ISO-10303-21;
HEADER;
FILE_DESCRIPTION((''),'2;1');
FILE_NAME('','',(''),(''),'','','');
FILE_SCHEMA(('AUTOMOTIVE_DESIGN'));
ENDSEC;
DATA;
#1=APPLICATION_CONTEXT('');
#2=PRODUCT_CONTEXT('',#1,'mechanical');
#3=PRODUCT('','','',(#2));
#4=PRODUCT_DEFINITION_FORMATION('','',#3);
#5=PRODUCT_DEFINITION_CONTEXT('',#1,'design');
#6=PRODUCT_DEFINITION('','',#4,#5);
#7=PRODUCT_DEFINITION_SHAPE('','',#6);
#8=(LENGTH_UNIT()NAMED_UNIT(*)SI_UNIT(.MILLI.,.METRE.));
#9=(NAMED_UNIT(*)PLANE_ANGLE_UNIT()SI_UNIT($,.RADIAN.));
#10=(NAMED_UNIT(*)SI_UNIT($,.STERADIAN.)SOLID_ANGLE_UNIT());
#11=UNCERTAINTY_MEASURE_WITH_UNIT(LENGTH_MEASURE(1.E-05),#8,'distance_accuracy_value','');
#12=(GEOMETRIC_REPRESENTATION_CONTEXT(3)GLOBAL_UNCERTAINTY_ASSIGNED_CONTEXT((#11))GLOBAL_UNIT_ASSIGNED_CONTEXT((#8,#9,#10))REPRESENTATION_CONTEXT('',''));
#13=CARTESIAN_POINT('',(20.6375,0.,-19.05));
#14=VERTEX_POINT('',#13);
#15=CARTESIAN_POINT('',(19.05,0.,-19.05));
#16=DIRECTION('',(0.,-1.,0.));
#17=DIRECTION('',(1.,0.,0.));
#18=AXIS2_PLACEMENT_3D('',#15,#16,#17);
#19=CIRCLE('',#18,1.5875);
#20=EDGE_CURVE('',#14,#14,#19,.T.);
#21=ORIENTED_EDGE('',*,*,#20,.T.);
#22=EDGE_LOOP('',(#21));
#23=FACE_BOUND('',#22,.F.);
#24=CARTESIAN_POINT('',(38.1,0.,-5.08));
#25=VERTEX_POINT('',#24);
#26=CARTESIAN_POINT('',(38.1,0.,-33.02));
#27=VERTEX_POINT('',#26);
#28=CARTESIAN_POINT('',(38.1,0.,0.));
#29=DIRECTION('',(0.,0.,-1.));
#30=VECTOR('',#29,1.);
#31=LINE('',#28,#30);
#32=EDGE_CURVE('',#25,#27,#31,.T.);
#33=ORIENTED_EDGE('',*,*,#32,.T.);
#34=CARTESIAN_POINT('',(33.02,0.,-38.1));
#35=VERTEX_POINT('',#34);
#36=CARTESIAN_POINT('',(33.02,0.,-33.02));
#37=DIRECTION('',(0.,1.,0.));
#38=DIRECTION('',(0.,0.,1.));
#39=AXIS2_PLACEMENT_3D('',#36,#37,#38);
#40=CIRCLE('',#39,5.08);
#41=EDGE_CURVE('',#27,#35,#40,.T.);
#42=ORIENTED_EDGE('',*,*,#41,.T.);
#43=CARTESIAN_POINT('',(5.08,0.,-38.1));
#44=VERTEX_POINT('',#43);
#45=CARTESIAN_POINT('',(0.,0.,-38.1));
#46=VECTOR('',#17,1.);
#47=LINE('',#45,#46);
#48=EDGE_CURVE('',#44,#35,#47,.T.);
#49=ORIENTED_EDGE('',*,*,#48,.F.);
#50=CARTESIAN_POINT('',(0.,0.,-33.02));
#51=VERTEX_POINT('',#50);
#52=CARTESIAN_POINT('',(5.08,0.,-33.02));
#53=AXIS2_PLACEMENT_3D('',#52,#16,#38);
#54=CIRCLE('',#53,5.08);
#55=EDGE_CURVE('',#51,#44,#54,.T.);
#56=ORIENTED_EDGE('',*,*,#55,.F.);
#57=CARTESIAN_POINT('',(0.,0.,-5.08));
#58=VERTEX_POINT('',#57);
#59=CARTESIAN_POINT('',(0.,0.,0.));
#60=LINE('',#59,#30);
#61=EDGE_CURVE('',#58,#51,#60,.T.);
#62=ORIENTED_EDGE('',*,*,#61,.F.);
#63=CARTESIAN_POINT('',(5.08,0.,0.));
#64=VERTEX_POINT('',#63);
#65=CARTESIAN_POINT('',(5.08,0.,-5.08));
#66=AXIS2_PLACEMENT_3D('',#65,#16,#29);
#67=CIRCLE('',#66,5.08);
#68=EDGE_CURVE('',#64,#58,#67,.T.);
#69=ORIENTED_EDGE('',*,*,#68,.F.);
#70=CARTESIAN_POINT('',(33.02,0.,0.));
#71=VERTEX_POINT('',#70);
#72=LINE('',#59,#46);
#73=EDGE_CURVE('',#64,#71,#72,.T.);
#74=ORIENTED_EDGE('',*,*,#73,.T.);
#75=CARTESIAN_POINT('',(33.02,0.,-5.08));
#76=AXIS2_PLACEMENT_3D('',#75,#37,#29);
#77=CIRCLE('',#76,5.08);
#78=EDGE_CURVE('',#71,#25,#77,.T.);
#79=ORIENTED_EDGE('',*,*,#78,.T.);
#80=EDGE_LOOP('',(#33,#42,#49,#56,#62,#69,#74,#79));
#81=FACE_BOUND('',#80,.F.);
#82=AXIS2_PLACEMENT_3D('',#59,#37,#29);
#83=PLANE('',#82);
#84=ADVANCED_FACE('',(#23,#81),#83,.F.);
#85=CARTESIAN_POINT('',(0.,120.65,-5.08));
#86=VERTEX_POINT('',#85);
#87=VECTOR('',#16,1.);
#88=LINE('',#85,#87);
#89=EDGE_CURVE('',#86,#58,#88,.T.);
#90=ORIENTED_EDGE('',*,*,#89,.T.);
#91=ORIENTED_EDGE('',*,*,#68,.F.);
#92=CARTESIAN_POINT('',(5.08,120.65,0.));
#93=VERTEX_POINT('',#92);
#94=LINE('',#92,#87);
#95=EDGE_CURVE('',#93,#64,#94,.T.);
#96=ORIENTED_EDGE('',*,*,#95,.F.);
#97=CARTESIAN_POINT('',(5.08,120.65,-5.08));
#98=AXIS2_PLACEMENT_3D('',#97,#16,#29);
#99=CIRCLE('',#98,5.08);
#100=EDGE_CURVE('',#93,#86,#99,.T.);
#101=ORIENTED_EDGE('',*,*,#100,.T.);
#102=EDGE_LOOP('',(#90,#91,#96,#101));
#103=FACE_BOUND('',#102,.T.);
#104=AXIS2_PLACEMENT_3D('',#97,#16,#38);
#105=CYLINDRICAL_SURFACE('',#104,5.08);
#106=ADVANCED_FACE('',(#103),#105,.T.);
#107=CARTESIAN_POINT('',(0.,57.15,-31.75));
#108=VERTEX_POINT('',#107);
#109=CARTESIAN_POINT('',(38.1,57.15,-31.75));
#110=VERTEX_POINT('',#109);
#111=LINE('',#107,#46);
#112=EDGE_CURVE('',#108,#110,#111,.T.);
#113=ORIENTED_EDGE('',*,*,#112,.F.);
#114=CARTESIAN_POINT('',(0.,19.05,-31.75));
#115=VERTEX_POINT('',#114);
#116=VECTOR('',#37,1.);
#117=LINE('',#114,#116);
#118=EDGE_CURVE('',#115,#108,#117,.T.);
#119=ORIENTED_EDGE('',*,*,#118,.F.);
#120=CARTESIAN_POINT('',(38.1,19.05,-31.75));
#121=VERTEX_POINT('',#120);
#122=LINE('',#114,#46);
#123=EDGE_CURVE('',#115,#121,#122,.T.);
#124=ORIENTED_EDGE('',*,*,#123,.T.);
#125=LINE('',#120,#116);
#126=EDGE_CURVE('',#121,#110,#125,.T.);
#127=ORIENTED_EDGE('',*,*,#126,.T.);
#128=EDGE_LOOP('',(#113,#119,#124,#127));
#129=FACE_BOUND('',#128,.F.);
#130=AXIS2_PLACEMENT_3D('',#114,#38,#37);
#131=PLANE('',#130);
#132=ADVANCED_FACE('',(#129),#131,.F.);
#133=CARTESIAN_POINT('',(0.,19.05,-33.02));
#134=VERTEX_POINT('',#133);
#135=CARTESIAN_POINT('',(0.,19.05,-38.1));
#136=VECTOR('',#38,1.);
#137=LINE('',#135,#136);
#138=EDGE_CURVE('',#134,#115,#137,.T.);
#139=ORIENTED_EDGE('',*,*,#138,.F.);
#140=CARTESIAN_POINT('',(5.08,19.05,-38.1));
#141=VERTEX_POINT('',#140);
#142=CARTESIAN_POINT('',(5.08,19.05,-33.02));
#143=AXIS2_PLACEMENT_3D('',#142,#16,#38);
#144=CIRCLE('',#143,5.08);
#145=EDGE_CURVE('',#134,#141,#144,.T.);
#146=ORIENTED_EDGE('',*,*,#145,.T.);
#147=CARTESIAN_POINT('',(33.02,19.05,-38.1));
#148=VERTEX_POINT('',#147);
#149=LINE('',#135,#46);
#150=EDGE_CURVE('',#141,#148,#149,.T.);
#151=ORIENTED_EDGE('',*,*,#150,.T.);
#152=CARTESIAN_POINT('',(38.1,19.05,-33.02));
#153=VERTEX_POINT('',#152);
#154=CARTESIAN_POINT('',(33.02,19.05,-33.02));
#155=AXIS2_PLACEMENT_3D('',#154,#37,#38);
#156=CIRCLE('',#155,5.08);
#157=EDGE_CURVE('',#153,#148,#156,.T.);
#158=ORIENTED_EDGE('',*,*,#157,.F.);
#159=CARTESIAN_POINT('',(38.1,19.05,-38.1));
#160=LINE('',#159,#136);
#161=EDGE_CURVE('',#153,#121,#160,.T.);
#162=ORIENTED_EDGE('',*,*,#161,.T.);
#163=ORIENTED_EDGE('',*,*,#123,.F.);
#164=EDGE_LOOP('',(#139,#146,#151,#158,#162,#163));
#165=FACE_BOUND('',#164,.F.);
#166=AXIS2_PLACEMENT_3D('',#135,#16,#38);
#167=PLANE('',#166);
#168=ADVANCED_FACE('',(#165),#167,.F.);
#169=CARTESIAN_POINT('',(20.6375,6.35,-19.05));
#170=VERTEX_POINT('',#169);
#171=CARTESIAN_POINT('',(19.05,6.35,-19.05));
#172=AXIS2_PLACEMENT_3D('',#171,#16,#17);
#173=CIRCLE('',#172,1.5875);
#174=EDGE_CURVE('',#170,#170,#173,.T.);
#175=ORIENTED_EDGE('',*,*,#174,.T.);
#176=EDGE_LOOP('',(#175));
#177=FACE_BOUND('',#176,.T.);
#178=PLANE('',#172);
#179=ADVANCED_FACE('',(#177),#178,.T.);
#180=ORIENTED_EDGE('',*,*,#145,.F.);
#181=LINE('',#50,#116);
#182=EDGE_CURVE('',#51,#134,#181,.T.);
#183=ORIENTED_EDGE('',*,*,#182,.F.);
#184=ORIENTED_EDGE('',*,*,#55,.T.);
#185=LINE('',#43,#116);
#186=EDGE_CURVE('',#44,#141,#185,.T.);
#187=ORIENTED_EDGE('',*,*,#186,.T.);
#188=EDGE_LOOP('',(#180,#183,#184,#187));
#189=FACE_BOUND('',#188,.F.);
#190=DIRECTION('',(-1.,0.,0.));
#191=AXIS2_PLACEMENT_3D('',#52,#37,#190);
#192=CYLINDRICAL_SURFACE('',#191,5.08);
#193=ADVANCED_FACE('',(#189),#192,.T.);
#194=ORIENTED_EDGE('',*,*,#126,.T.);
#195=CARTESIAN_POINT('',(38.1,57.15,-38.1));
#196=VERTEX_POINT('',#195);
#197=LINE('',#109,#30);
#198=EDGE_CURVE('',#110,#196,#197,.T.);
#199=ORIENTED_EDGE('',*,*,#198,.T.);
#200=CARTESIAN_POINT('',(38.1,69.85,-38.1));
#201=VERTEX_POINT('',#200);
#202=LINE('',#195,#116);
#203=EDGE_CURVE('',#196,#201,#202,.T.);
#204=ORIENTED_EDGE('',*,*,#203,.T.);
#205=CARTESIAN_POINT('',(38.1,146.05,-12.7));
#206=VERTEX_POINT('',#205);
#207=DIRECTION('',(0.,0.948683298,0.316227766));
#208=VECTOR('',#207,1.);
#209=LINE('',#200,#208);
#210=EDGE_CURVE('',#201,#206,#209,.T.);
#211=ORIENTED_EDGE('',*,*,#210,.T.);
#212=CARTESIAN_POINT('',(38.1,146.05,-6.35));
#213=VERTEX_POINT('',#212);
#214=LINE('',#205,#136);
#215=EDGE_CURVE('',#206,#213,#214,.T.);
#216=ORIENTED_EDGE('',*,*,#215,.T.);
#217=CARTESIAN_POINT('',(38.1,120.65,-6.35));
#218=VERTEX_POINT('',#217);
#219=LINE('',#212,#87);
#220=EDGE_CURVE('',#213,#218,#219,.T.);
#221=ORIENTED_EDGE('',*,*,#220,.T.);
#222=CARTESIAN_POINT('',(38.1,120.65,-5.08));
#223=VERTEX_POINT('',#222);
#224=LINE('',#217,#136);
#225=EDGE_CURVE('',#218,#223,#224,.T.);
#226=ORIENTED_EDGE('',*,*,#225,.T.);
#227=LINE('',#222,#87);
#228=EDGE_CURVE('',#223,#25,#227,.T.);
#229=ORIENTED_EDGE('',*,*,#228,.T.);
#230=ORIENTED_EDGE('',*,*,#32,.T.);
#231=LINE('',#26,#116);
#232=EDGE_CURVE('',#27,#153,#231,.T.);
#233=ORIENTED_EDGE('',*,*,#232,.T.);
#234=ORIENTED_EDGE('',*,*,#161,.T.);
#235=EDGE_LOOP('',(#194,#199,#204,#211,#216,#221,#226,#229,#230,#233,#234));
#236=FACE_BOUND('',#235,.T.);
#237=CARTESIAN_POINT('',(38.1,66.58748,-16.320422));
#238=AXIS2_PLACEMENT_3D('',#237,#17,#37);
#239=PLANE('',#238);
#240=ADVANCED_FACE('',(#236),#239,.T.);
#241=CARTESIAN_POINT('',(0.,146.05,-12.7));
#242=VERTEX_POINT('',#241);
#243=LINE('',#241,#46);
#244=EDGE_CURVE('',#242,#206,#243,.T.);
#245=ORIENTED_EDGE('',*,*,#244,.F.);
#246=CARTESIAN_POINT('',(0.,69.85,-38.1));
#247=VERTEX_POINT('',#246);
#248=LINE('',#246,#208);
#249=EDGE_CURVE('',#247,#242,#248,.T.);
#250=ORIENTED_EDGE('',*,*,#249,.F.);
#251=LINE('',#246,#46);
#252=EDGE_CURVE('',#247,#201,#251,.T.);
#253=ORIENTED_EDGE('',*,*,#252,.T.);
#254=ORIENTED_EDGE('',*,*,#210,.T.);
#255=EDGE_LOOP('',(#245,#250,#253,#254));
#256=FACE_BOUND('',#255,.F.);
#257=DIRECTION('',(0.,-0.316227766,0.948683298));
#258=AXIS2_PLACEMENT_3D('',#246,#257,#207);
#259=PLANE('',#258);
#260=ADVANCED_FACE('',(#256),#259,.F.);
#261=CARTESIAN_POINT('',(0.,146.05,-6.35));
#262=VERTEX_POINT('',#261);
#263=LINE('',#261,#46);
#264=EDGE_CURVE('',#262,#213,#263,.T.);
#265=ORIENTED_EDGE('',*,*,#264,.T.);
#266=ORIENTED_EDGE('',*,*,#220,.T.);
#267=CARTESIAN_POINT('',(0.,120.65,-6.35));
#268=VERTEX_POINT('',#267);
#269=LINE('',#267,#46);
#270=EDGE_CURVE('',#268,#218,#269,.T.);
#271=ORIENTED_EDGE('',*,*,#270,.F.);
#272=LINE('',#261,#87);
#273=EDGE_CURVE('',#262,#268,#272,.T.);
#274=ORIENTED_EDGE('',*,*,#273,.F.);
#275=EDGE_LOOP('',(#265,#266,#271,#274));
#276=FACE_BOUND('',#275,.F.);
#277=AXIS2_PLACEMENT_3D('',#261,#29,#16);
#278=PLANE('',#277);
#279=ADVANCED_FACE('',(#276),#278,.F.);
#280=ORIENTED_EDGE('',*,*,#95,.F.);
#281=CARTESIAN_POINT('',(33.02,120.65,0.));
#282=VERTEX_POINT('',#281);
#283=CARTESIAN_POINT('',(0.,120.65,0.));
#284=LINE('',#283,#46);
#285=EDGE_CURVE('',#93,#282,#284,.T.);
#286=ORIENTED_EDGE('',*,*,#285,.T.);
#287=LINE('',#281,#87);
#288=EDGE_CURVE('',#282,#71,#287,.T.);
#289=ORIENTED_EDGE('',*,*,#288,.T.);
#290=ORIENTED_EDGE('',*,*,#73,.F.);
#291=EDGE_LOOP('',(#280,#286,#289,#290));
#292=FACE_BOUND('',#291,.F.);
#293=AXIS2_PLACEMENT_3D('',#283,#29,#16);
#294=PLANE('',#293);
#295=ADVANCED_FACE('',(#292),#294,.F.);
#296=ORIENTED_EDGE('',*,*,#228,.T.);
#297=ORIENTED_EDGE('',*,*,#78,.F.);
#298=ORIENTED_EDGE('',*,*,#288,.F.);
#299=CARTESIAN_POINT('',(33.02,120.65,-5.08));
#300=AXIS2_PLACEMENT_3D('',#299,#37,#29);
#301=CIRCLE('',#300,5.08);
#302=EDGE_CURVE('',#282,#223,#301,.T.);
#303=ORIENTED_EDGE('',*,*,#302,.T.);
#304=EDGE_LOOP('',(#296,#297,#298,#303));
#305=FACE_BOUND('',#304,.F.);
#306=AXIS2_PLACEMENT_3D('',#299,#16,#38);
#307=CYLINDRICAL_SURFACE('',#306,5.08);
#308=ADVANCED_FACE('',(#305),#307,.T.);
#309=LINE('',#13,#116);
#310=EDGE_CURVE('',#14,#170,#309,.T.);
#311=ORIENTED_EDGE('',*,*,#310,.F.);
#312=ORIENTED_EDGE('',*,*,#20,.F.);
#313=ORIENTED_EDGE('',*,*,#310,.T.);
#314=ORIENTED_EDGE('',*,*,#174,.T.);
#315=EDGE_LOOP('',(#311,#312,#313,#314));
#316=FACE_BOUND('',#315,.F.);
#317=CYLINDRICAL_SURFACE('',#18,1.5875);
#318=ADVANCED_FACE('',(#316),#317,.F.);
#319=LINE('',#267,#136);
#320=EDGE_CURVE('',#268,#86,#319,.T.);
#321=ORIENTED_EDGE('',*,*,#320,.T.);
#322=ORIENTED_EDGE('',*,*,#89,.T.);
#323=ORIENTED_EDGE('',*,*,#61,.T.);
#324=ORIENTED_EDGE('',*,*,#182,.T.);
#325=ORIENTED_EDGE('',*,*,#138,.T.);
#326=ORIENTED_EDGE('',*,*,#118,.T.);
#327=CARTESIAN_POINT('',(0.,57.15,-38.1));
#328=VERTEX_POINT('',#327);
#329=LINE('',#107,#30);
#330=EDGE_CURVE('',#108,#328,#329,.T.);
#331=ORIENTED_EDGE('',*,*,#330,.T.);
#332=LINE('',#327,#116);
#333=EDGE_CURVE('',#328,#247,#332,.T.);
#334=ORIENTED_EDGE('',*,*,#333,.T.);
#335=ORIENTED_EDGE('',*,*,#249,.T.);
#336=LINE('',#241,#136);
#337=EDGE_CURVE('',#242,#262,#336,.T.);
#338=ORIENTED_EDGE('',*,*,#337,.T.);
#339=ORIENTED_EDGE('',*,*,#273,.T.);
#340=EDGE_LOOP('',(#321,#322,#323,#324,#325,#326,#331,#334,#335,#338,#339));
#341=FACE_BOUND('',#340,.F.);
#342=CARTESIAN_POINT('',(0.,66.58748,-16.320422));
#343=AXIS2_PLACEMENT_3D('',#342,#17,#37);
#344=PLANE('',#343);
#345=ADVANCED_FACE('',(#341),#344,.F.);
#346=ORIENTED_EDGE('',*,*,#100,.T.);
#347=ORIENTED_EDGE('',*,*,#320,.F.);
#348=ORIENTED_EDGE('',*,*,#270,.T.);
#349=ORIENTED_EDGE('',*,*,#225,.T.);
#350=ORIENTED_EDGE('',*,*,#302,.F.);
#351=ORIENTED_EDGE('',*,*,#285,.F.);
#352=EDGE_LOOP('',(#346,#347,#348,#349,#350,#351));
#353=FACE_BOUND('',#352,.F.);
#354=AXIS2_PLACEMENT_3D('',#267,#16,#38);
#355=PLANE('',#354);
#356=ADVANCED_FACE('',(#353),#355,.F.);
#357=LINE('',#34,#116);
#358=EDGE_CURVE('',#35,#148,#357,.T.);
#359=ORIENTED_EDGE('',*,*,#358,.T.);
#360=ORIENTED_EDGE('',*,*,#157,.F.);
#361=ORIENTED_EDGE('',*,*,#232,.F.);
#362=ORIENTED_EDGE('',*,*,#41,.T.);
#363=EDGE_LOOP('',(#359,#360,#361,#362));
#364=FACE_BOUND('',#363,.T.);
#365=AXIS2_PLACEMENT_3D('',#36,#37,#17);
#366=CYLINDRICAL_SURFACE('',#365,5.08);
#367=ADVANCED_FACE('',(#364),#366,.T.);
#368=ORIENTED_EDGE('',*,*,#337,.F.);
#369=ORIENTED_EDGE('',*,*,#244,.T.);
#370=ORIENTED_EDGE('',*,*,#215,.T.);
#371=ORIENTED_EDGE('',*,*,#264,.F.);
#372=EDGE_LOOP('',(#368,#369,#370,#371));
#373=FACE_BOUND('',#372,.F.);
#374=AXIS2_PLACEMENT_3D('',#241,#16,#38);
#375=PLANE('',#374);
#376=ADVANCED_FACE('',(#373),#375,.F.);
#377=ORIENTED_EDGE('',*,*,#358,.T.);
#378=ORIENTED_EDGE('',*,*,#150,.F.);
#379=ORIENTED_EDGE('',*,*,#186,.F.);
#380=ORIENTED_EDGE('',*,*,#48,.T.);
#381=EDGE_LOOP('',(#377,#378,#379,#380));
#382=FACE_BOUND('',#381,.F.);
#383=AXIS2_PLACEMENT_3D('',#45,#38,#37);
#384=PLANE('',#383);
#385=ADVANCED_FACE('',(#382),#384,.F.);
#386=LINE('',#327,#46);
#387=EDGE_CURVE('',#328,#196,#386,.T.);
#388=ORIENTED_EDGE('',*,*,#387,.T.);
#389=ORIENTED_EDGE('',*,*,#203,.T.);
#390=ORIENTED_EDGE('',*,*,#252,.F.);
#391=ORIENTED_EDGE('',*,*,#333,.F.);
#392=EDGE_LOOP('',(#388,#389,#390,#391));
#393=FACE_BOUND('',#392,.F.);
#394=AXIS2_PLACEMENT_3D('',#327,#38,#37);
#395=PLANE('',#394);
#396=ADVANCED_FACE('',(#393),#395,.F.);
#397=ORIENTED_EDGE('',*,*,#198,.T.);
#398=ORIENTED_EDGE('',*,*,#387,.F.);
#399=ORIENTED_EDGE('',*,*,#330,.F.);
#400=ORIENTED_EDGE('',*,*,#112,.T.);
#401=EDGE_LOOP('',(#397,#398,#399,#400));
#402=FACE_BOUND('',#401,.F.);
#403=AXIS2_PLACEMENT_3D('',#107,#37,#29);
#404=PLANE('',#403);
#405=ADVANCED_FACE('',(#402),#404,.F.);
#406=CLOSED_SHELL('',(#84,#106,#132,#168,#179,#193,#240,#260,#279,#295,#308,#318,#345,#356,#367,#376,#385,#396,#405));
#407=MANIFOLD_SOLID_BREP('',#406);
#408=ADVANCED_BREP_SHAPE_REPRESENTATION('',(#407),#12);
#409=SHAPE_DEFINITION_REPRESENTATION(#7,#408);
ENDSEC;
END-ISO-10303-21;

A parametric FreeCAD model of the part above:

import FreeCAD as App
import Part
import Sketcher
from FreeCAD import Vector
Q = App.Units.Quantity


def edges_at(feature, points):
    """Names of the edges that pass closest to the given points."""
    edges = feature.Shape.Edges
    near = lambda p: min(range(len(edges)), key=lambda i: edges[i].distToShape(Part.Vertex(*p))[0])
    return sorted({f"Edge{near(p) + 1}" for p in points})


def add_polygon(sketch, points):
    """Adds a closed chain of lines whose ends are joined by coincident constraints."""
    first, n = sketch.GeometryCount, len(points)
    for a, b in zip(points, points[1:] + points[:1]):
        sketch.addGeometry(Part.LineSegment(App.Vector(*a, 0), App.Vector(*b, 0)), False)
    for i in range(n):
        sketch.addConstraint(Sketcher.Constraint("Coincident", first + i, 2, first + (i + 1) % n, 1))

doc = App.newDocument("Part")
body = doc.addObject("PartDesign::Body", "Body")

sketch1 = body.newObject("Sketcher::SketchObject", "Sketch")
sketch1.AttachmentSupport = (doc.getObject("YZ_Plane"), [""])
sketch1.MapMode = "FlatFace"
add_polygon(sketch1, [(121, 0), (0, 0), (0, -38), (19, -38), (19, -32), (57, -32), (57, -38), (70, -38), (146, -13), (146, -6), (121, -6)])
sketch1.addConstraint([
    Sketcher.Constraint("Horizontal", 0),
    Sketcher.Constraint("Vertical", 1),
    Sketcher.Constraint("Horizontal", 2),
    Sketcher.Constraint("Vertical", 3),
    Sketcher.Constraint("Horizontal", 4),
    Sketcher.Constraint("Vertical", 5),
    Sketcher.Constraint("Horizontal", 6),
    Sketcher.Constraint("Vertical", 8),
    Sketcher.Constraint("Horizontal", 9),
    Sketcher.Constraint("Vertical", 10),
    Sketcher.Constraint("Coincident", 0, 2, -1, 1),
    Sketcher.Constraint("Horizontal", 2, 2, 5, 2),
    Sketcher.Constraint("Equal", 4, 1),
    Sketcher.Constraint("Equal", 5, 8),
    Sketcher.Constraint("Equal", 8, 10),
    Sketcher.Constraint("DistanceX", 9, 2, 9, 1, Q("1 in")),
    Sketcher.Constraint("DistanceX", 4, 1, 4, 2, Q("1.5 in")),
    Sketcher.Constraint("DistanceX", 6, 1, 6, 2, Q("0.5 in")),
    Sketcher.Constraint("DistanceX", 6, 2, 7, 2, Q("3 in")),
    Sketcher.Constraint("DistanceY", 6, 2, 7, 2, Q("1 in")),
    Sketcher.Constraint("DistanceX", 0, 2, 0, 1, Q("4.75 in")),
])
pad1 = body.newObject("PartDesign::Pad", "Pad")
pad1.Profile = sketch1
pad1.Length = Q("1.5 in")

sketch2 = body.newObject("Sketcher::SketchObject", "Sketch001")
sketch2.AttachmentSupport = (doc.getObject("XZ_Plane"), [""])
sketch2.MapMode = "FlatFace"
sketch2.addGeometry(Part.Circle(Vector(19.1, -19.1, 0), Vector(0, 0, 1), 1.6), False)
sketch2.addConstraint([
    Sketcher.Constraint("Diameter", 0, Q("0.125 in")),
    Sketcher.Constraint("DistanceX", -1, 1, 0, 3, Q("0.75 in")),
    Sketcher.Constraint("DistanceY", 0, 3, -1, 1, Q("0.75 in")),
])
pocket1 = body.newObject("PartDesign::Pocket", "Pocket")
pocket1.Profile = sketch2
pocket1.Length = Q("0.25 in")
doc.recompute()

fillet = body.newObject("PartDesign::Fillet", "Fillet")
fillet.Base = (pocket1, edges_at(pocket1, [
    (38.1, 60.325, 0),
    (0, 60.325, 0),
    (38.1, 9.525, -38.1),
    (0, 9.525, -38.1),
]))
fillet.Radius = Q("0.2 in")

doc.recompute()
